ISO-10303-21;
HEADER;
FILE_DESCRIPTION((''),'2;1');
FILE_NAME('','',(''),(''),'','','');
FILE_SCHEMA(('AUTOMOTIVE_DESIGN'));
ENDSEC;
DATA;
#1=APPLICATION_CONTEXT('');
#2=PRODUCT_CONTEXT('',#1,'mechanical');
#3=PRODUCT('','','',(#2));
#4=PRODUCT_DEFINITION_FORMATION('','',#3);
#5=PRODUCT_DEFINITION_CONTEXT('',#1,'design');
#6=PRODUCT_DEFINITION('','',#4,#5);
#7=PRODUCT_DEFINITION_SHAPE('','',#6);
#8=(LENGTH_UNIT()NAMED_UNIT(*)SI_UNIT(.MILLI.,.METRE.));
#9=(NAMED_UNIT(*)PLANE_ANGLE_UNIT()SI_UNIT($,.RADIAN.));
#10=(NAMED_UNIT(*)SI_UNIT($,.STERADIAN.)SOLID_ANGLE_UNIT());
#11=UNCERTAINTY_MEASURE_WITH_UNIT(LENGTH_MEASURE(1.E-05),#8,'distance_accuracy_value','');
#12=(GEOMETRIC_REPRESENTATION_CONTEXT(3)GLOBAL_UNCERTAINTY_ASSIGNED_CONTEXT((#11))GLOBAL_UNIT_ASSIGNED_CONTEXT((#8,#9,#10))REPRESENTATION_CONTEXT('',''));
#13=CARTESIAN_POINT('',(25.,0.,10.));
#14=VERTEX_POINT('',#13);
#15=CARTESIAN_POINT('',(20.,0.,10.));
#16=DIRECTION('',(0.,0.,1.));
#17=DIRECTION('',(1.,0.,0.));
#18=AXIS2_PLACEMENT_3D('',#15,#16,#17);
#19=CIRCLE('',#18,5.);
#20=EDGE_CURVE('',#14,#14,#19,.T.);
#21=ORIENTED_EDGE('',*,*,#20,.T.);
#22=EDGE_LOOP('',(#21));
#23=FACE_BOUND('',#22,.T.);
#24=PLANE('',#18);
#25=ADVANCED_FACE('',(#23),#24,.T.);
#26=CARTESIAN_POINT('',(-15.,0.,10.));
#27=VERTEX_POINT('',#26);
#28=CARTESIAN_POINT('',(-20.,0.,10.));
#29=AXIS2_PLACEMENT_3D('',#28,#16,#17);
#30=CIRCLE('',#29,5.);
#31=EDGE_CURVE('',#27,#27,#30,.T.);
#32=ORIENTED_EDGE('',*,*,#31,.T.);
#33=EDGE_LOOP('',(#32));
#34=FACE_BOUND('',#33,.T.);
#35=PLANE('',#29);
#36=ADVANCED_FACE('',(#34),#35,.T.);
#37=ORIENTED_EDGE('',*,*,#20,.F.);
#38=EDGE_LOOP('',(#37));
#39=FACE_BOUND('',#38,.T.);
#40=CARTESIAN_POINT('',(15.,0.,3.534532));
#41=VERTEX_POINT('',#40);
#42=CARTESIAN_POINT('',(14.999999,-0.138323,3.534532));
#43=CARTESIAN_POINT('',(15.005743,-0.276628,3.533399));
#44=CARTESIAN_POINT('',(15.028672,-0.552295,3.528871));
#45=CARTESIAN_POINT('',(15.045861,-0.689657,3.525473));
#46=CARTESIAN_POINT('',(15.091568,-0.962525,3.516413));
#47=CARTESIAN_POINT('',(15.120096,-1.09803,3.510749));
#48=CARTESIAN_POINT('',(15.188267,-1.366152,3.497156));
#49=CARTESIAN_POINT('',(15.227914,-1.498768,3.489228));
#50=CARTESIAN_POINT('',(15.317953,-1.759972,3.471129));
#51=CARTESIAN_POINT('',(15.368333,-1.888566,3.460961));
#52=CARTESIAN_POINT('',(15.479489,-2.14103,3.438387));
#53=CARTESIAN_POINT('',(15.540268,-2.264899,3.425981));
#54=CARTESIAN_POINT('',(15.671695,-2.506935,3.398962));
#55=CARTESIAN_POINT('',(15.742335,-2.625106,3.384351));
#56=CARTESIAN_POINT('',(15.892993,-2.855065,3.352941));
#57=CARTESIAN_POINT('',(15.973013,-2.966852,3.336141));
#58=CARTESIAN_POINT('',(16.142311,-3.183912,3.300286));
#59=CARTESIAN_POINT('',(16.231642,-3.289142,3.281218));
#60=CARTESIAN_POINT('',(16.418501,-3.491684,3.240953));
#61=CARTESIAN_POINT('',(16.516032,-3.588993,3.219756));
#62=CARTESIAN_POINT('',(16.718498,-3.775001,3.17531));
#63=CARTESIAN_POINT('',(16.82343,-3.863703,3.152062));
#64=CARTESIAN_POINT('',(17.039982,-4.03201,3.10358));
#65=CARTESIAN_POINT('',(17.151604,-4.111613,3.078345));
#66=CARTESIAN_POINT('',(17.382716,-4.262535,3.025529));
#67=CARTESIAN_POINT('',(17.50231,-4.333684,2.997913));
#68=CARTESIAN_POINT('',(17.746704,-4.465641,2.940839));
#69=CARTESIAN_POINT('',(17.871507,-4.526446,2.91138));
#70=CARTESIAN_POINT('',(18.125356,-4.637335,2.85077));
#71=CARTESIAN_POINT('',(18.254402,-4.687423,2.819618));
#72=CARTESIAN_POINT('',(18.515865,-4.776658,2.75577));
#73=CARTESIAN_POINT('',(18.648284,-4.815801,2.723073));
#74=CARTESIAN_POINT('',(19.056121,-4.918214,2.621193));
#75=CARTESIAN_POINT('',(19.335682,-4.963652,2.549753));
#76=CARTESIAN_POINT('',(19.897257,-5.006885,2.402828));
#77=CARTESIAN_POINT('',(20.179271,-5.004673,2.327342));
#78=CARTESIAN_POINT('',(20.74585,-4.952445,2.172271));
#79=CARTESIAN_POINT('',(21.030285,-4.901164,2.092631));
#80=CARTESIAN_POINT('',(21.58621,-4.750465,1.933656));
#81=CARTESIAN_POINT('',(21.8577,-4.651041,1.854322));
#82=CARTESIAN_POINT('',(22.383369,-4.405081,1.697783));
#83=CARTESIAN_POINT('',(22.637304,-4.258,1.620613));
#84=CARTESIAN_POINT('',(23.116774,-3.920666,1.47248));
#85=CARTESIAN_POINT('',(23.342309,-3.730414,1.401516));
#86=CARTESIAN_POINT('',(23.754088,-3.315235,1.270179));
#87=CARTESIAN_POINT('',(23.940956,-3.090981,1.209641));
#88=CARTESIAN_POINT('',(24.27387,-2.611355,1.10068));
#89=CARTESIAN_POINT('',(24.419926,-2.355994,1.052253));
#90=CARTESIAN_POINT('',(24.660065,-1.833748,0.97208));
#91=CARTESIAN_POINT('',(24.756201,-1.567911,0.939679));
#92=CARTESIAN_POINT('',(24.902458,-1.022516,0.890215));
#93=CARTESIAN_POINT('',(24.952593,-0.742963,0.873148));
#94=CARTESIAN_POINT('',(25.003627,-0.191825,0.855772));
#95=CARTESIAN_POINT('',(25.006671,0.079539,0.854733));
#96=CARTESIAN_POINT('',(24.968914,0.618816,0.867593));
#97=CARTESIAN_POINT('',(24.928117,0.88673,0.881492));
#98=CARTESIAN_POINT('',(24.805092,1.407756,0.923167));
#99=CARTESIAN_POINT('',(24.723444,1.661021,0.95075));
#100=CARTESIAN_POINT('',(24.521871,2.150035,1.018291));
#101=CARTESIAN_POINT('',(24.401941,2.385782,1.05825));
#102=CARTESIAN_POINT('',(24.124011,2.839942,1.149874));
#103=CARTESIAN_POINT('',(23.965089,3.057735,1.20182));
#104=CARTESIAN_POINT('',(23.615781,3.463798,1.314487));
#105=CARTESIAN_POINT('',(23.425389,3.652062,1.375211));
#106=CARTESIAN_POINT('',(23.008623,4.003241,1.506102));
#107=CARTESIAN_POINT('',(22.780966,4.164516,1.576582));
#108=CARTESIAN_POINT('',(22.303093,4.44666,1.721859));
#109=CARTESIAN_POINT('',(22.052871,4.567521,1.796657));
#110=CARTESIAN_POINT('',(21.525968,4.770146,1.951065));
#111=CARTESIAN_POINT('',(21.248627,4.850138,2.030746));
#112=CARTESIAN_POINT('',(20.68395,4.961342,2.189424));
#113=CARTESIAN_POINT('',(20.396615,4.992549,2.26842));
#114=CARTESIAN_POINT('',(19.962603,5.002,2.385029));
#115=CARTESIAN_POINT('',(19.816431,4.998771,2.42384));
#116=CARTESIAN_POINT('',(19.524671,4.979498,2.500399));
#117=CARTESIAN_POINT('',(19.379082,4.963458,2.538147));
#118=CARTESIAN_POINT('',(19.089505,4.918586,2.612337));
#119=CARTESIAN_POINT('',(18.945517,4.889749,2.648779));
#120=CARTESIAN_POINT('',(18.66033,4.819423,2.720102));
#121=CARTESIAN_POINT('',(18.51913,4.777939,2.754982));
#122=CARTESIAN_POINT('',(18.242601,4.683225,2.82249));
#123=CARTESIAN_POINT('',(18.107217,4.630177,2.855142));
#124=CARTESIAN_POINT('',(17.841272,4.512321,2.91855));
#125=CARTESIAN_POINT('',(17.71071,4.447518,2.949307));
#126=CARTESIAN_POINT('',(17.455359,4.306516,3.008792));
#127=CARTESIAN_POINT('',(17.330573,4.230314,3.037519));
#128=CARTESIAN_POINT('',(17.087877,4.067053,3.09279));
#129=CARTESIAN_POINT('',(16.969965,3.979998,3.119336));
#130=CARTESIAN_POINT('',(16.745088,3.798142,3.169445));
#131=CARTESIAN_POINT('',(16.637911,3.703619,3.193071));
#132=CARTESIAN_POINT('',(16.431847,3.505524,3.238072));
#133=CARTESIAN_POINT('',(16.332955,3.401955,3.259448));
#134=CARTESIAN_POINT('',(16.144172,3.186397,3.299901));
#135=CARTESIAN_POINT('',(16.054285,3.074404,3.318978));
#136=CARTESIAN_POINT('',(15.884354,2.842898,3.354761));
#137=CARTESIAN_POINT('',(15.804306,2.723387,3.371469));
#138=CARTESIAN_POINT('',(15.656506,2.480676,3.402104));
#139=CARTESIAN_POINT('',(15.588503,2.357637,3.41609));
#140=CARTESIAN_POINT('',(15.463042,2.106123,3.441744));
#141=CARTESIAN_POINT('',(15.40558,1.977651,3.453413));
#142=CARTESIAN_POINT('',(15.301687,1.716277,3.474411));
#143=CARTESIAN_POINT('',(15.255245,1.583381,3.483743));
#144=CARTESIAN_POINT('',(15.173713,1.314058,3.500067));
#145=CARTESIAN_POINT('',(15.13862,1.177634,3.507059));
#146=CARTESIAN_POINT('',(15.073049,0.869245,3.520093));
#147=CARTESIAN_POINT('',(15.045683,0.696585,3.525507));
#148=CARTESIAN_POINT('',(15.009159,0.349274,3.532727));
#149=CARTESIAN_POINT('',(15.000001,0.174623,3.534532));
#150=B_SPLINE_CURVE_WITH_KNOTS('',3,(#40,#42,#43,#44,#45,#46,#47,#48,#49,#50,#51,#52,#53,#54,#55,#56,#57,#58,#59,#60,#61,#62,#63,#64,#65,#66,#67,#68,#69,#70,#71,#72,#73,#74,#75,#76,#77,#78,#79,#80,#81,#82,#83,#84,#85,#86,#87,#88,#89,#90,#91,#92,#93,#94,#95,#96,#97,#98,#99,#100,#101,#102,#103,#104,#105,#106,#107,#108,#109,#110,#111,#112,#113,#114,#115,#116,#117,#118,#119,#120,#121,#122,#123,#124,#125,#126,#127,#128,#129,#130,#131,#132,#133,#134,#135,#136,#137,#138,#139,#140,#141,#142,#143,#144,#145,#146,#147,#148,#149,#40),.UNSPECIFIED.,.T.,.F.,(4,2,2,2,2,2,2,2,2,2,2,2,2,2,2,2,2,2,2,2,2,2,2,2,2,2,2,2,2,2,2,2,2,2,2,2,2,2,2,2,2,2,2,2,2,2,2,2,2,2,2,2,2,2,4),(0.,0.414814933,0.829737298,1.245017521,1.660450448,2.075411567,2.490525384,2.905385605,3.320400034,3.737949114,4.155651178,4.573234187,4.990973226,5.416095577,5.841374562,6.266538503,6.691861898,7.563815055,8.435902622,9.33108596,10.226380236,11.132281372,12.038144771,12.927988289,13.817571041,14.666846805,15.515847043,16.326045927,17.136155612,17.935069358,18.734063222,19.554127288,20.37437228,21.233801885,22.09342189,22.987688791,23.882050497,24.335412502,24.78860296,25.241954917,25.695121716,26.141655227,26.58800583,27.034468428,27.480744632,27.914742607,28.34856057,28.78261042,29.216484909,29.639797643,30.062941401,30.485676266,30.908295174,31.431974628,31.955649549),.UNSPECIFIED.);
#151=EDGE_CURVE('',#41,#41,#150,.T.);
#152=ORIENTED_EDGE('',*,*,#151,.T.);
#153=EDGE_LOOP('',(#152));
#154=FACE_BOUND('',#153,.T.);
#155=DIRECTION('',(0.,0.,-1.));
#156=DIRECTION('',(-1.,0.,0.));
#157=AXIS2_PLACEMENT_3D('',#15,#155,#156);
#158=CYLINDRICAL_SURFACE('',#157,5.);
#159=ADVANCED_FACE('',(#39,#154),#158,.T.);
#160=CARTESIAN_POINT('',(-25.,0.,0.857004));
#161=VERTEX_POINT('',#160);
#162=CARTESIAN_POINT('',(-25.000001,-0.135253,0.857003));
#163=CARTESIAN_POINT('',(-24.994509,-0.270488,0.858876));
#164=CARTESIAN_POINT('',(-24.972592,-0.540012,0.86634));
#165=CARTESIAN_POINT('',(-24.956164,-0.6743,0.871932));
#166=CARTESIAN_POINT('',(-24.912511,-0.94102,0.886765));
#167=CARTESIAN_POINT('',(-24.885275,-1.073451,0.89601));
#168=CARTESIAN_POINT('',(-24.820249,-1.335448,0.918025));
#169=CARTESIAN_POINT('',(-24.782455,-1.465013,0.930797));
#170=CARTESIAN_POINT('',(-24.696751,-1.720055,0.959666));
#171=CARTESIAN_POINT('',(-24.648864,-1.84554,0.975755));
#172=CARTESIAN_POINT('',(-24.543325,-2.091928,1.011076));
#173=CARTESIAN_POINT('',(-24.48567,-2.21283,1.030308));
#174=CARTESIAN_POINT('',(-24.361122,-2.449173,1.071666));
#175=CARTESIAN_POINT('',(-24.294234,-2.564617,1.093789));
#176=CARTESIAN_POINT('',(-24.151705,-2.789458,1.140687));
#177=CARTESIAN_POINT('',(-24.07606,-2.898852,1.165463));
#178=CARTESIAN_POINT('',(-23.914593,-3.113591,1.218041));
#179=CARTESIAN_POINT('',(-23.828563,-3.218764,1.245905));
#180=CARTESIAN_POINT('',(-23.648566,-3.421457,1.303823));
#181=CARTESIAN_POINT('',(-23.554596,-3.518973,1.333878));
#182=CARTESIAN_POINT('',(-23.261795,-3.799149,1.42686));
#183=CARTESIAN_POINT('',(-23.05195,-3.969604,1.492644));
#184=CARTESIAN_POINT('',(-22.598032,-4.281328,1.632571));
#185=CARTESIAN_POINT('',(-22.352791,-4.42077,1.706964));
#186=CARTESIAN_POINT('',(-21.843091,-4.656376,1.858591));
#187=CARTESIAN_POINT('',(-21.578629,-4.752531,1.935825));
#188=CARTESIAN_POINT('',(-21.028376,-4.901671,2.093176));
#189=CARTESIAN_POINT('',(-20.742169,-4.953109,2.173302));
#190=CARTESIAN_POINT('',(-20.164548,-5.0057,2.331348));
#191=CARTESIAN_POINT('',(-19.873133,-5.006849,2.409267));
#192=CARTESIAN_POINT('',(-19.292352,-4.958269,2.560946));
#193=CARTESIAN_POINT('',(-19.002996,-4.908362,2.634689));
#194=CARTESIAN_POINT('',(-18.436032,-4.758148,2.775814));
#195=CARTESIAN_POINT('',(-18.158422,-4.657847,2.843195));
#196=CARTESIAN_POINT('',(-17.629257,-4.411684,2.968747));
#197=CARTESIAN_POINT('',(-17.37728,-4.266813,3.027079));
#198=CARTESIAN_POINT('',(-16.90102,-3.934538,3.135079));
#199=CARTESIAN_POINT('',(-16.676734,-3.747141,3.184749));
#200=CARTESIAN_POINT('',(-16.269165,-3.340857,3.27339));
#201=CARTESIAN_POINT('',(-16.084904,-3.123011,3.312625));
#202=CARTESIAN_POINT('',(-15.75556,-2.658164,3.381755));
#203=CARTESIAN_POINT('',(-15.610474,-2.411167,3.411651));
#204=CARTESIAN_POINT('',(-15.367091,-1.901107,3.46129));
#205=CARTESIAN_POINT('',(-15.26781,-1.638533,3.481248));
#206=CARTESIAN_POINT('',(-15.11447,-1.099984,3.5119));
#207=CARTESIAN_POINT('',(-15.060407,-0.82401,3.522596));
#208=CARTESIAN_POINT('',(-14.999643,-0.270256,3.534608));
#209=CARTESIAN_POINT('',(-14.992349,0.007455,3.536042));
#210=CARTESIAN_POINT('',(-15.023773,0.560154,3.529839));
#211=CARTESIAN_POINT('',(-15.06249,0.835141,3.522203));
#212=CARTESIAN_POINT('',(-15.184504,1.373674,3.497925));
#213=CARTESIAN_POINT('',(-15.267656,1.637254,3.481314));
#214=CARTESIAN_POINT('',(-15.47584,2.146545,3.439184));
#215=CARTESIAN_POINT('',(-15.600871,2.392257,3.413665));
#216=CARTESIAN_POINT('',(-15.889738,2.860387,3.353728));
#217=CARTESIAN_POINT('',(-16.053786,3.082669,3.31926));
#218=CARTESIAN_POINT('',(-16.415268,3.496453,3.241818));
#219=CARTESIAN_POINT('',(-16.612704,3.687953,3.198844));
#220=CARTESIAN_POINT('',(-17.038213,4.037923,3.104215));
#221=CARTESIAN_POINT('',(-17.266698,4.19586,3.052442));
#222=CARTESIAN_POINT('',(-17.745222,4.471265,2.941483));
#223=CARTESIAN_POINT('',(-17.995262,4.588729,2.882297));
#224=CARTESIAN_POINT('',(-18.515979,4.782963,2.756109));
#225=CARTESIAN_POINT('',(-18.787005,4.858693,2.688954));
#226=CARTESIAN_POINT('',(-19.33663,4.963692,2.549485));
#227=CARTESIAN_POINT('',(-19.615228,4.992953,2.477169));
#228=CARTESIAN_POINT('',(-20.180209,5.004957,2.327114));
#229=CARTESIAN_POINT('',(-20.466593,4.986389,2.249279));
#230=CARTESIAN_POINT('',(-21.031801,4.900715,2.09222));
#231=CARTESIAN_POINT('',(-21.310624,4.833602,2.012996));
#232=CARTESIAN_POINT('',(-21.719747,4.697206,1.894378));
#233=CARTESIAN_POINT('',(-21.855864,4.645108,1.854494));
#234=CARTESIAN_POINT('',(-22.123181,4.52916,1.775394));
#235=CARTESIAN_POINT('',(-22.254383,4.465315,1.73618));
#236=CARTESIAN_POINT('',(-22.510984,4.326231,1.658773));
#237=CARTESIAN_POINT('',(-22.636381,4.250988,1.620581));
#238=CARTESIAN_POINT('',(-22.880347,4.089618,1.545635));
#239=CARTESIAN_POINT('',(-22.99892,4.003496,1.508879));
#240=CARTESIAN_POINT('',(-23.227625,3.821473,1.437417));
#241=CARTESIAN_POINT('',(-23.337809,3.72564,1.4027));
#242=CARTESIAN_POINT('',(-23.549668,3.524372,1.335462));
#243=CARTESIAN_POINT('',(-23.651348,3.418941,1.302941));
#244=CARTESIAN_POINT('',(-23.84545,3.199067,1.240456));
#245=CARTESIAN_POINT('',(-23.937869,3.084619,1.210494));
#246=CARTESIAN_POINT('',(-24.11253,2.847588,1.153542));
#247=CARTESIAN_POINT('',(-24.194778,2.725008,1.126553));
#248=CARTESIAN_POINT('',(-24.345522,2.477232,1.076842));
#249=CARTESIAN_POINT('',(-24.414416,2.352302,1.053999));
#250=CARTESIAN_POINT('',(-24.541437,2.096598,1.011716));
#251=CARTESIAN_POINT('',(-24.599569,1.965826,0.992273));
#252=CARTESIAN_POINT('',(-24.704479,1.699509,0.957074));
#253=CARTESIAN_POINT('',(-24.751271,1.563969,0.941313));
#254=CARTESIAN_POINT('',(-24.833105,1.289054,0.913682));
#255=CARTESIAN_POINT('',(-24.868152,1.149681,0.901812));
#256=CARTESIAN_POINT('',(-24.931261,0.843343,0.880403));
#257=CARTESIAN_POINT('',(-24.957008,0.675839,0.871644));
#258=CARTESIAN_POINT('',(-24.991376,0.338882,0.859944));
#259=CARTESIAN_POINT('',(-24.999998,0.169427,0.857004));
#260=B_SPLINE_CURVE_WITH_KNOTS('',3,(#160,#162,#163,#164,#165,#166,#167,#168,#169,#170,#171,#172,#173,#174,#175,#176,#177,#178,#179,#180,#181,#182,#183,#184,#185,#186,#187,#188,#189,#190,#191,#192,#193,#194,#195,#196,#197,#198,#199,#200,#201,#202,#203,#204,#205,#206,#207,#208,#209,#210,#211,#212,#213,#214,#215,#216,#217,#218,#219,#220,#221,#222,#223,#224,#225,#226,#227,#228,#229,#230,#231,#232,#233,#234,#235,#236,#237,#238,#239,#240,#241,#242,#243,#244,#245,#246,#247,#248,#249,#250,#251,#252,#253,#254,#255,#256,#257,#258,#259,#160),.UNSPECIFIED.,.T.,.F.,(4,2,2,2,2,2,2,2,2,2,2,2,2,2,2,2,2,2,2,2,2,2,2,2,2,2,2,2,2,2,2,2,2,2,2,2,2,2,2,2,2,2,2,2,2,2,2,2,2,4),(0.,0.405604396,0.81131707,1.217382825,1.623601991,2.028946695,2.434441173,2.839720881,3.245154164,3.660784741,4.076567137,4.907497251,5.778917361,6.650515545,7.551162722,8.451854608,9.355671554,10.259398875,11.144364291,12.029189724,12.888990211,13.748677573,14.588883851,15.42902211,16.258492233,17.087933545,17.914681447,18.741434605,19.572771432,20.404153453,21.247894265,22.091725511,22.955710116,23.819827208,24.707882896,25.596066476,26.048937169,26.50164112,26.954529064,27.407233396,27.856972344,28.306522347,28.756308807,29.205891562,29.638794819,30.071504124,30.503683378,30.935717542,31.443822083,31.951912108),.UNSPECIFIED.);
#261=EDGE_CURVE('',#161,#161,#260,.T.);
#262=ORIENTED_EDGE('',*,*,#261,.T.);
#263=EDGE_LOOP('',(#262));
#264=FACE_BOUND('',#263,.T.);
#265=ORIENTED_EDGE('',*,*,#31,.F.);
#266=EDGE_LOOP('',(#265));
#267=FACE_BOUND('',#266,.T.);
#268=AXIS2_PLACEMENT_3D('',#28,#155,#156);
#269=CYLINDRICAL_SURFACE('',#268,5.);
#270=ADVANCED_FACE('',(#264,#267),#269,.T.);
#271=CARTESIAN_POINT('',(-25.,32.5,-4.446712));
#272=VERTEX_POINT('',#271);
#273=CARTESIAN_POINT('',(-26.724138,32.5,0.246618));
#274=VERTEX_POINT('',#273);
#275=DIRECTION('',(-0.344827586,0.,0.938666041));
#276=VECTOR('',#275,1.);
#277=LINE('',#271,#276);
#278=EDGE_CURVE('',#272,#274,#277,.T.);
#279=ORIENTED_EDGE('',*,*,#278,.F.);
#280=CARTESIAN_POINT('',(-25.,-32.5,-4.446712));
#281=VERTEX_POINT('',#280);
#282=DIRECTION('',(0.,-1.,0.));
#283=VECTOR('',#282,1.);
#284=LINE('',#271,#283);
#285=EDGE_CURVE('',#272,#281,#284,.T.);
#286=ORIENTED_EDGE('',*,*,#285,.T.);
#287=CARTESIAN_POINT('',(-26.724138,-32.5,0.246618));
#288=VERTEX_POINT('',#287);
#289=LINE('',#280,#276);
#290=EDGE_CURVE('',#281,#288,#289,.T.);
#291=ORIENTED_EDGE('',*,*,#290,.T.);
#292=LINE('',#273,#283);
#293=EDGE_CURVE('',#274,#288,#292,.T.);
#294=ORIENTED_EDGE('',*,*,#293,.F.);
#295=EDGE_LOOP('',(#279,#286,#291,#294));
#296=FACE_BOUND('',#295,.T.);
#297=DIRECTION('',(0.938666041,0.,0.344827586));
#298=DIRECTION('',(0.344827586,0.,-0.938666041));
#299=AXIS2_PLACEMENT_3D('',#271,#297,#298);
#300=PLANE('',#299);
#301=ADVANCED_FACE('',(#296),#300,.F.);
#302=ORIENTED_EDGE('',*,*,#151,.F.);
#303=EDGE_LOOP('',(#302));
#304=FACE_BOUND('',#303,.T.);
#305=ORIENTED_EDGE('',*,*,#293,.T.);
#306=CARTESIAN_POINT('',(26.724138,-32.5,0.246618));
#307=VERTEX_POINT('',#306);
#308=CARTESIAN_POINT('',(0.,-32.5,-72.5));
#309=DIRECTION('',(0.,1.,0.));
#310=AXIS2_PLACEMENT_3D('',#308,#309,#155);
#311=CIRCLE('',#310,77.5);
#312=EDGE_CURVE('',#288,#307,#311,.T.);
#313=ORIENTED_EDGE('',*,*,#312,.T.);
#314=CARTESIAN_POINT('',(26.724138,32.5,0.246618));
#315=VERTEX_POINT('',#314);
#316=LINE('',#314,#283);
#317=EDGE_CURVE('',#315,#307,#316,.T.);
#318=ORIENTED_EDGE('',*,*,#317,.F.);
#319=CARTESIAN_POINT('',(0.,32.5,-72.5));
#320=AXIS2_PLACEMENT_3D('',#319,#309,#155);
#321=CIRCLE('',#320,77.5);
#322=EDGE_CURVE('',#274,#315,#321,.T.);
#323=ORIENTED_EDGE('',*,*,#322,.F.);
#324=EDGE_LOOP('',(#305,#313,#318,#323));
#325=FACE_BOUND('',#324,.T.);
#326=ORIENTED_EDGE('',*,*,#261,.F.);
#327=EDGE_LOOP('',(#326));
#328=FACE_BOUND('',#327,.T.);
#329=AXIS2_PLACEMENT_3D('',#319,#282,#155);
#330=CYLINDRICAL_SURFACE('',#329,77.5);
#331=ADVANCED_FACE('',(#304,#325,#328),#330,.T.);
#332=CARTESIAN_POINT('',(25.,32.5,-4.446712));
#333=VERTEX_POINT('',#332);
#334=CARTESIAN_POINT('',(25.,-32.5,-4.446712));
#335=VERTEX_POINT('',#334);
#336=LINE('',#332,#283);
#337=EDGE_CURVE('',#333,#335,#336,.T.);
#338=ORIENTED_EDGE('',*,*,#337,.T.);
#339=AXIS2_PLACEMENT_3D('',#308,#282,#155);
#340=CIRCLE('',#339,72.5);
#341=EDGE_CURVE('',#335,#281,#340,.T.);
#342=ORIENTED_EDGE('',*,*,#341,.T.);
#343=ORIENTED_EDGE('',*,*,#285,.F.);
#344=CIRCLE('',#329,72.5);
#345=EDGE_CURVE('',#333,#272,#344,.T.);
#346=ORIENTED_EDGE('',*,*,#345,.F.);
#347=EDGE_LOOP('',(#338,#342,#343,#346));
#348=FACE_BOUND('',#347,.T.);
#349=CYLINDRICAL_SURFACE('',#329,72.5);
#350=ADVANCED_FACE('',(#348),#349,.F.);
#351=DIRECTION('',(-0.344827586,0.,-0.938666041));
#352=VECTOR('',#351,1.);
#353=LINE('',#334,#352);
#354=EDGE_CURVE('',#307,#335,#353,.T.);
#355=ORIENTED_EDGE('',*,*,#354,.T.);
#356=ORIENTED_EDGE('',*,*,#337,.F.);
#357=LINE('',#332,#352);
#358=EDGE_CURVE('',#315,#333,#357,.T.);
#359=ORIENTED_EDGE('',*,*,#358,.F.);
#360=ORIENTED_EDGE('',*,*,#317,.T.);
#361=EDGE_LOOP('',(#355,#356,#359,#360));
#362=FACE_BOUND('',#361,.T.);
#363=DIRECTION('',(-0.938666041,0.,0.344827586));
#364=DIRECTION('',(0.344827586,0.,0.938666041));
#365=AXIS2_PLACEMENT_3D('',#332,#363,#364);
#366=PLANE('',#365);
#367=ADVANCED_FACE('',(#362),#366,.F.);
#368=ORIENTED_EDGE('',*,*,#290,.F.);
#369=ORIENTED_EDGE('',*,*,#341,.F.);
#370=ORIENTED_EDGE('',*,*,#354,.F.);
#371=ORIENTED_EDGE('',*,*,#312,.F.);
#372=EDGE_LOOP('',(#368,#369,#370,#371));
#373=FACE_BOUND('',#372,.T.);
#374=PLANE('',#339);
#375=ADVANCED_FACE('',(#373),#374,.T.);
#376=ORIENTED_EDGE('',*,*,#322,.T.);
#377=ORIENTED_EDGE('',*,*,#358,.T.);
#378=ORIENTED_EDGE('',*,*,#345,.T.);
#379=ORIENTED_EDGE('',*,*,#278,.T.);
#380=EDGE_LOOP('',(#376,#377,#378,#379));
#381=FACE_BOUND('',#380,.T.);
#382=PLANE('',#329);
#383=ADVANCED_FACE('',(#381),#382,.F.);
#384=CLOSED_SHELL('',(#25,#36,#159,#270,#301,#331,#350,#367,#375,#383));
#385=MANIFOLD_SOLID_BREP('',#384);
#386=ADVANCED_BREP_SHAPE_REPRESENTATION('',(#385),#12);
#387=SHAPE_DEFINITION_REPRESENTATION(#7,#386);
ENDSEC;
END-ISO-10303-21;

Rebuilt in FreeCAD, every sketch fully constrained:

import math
import FreeCAD as App
import Part
import Sketcher

doc = App.newDocument("Part")
params = doc.addObject("Spreadsheet::Sheet", "Params")
for row, (alias, value) in enumerate([
    ("sketch1_radius", "77.5 mm"),
    ("sketch1_radius2", "72.5 mm"),
    ("pad1_length", "65 mm"),
    ("sketch2_diameter", "10 mm"),
    ("pad2_length", "10 mm"),
], start=1):
    params.set(f"A{row}", alias)
    params.set(f"B{row}", "=" + value)
    params.setAlias(f"B{row}", alias)

body = doc.addObject("PartDesign::Body", "Body")

# Sketch on XZ plane
sketch1 = doc.addObject("Sketcher::SketchObject", "Sketch")
body.addObject(sketch1)
sketch1.AttachmentSupport = (doc.XZ_Plane, [""])
sketch1.MapMode = "FlatFace"
sketch1.addGeometry([
    Part.LineSegment(App.Vector(-25, -4.4, 0), App.Vector(-26.7, 0.2, 0)),
    Part.ArcOfCircle(Part.Circle(App.Vector(0, -72.5, 0), App.Vector(0, 0, 1), 77.5), math.radians(70), math.radians(110)),
    Part.LineSegment(App.Vector(26.7, 0.2, 0), App.Vector(25, -4.4, 0)),
    Part.ArcOfCircle(Part.Circle(App.Vector(0, -72.5, 0), App.Vector(0, 0, 1), 72.5), math.radians(70), math.radians(110)),
], False)
sketch1.addConstraint([
    Sketcher.Constraint("Coincident", 0, 2, 1, 2),
    Sketcher.Constraint("Coincident", 1, 1, 2, 1),
    Sketcher.Constraint("Coincident", 2, 2, 3, 1),
    Sketcher.Constraint("Coincident", 3, 2, 0, 1),
    Sketcher.Constraint("Coincident", 3, 3, 1, 3),
    Sketcher.Constraint("Symmetric", 0, 2, 1, 1, -2),
    Sketcher.Constraint("Horizontal", 2, 2, 3, 2),
    Sketcher.Constraint("Radius", 1, 77.5),
    Sketcher.Constraint("Radius", 3, 72.5),
    Sketcher.Constraint("DistanceX", -1, 1, 2, 2, 25.0),
    Sketcher.Constraint("DistanceY", 1, 3, -1, 1, 72.5),
    Sketcher.Constraint("DistanceY", -1, 1, 0, 2, 0.246618),
])
sketch1.setExpression("Constraints[7]", "Params.sketch1_radius")
sketch1.setExpression("Constraints[8]", "Params.sketch1_radius2")
pad1 = doc.addObject("PartDesign::Pad", "Pad")
body.addObject(pad1)
pad1.Profile = sketch1
pad1.setExpression("Length", "Params.pad1_length")
pad1.Midplane = True

# Sketch on XY plane
sketch2 = doc.addObject("Sketcher::SketchObject", "Sketch001")
body.addObject(sketch2)
sketch2.AttachmentSupport = (doc.XY_Plane, [""])
sketch2.MapMode = "FlatFace"
sketch2.addGeometry([
    Part.Circle(App.Vector(-20, 0, 0), App.Vector(0, 0, 1), 5),
    Part.Circle(App.Vector(20, 0, 0), App.Vector(0, 0, 1), 5),
], False)
sketch2.addConstraint([
    Sketcher.Constraint("Equal", 0, 1),
    Sketcher.Constraint("Symmetric", 0, 3, 1, 3, -1, 1),
    Sketcher.Constraint("PointOnObject", 0, 3, -1),
    Sketcher.Constraint("Diameter", 0, 10.0),
    Sketcher.Constraint("DistanceX", 0, 3, -1, 1, 20.0),
])
sketch2.setExpression("Constraints[3]", "Params.sketch2_diameter")
pad2 = doc.addObject("PartDesign::Pad", "Pad001")
body.addObject(pad2)
pad2.Profile = sketch2
pad2.setExpression("Length", "Params.pad2_length")

doc.recompute()
